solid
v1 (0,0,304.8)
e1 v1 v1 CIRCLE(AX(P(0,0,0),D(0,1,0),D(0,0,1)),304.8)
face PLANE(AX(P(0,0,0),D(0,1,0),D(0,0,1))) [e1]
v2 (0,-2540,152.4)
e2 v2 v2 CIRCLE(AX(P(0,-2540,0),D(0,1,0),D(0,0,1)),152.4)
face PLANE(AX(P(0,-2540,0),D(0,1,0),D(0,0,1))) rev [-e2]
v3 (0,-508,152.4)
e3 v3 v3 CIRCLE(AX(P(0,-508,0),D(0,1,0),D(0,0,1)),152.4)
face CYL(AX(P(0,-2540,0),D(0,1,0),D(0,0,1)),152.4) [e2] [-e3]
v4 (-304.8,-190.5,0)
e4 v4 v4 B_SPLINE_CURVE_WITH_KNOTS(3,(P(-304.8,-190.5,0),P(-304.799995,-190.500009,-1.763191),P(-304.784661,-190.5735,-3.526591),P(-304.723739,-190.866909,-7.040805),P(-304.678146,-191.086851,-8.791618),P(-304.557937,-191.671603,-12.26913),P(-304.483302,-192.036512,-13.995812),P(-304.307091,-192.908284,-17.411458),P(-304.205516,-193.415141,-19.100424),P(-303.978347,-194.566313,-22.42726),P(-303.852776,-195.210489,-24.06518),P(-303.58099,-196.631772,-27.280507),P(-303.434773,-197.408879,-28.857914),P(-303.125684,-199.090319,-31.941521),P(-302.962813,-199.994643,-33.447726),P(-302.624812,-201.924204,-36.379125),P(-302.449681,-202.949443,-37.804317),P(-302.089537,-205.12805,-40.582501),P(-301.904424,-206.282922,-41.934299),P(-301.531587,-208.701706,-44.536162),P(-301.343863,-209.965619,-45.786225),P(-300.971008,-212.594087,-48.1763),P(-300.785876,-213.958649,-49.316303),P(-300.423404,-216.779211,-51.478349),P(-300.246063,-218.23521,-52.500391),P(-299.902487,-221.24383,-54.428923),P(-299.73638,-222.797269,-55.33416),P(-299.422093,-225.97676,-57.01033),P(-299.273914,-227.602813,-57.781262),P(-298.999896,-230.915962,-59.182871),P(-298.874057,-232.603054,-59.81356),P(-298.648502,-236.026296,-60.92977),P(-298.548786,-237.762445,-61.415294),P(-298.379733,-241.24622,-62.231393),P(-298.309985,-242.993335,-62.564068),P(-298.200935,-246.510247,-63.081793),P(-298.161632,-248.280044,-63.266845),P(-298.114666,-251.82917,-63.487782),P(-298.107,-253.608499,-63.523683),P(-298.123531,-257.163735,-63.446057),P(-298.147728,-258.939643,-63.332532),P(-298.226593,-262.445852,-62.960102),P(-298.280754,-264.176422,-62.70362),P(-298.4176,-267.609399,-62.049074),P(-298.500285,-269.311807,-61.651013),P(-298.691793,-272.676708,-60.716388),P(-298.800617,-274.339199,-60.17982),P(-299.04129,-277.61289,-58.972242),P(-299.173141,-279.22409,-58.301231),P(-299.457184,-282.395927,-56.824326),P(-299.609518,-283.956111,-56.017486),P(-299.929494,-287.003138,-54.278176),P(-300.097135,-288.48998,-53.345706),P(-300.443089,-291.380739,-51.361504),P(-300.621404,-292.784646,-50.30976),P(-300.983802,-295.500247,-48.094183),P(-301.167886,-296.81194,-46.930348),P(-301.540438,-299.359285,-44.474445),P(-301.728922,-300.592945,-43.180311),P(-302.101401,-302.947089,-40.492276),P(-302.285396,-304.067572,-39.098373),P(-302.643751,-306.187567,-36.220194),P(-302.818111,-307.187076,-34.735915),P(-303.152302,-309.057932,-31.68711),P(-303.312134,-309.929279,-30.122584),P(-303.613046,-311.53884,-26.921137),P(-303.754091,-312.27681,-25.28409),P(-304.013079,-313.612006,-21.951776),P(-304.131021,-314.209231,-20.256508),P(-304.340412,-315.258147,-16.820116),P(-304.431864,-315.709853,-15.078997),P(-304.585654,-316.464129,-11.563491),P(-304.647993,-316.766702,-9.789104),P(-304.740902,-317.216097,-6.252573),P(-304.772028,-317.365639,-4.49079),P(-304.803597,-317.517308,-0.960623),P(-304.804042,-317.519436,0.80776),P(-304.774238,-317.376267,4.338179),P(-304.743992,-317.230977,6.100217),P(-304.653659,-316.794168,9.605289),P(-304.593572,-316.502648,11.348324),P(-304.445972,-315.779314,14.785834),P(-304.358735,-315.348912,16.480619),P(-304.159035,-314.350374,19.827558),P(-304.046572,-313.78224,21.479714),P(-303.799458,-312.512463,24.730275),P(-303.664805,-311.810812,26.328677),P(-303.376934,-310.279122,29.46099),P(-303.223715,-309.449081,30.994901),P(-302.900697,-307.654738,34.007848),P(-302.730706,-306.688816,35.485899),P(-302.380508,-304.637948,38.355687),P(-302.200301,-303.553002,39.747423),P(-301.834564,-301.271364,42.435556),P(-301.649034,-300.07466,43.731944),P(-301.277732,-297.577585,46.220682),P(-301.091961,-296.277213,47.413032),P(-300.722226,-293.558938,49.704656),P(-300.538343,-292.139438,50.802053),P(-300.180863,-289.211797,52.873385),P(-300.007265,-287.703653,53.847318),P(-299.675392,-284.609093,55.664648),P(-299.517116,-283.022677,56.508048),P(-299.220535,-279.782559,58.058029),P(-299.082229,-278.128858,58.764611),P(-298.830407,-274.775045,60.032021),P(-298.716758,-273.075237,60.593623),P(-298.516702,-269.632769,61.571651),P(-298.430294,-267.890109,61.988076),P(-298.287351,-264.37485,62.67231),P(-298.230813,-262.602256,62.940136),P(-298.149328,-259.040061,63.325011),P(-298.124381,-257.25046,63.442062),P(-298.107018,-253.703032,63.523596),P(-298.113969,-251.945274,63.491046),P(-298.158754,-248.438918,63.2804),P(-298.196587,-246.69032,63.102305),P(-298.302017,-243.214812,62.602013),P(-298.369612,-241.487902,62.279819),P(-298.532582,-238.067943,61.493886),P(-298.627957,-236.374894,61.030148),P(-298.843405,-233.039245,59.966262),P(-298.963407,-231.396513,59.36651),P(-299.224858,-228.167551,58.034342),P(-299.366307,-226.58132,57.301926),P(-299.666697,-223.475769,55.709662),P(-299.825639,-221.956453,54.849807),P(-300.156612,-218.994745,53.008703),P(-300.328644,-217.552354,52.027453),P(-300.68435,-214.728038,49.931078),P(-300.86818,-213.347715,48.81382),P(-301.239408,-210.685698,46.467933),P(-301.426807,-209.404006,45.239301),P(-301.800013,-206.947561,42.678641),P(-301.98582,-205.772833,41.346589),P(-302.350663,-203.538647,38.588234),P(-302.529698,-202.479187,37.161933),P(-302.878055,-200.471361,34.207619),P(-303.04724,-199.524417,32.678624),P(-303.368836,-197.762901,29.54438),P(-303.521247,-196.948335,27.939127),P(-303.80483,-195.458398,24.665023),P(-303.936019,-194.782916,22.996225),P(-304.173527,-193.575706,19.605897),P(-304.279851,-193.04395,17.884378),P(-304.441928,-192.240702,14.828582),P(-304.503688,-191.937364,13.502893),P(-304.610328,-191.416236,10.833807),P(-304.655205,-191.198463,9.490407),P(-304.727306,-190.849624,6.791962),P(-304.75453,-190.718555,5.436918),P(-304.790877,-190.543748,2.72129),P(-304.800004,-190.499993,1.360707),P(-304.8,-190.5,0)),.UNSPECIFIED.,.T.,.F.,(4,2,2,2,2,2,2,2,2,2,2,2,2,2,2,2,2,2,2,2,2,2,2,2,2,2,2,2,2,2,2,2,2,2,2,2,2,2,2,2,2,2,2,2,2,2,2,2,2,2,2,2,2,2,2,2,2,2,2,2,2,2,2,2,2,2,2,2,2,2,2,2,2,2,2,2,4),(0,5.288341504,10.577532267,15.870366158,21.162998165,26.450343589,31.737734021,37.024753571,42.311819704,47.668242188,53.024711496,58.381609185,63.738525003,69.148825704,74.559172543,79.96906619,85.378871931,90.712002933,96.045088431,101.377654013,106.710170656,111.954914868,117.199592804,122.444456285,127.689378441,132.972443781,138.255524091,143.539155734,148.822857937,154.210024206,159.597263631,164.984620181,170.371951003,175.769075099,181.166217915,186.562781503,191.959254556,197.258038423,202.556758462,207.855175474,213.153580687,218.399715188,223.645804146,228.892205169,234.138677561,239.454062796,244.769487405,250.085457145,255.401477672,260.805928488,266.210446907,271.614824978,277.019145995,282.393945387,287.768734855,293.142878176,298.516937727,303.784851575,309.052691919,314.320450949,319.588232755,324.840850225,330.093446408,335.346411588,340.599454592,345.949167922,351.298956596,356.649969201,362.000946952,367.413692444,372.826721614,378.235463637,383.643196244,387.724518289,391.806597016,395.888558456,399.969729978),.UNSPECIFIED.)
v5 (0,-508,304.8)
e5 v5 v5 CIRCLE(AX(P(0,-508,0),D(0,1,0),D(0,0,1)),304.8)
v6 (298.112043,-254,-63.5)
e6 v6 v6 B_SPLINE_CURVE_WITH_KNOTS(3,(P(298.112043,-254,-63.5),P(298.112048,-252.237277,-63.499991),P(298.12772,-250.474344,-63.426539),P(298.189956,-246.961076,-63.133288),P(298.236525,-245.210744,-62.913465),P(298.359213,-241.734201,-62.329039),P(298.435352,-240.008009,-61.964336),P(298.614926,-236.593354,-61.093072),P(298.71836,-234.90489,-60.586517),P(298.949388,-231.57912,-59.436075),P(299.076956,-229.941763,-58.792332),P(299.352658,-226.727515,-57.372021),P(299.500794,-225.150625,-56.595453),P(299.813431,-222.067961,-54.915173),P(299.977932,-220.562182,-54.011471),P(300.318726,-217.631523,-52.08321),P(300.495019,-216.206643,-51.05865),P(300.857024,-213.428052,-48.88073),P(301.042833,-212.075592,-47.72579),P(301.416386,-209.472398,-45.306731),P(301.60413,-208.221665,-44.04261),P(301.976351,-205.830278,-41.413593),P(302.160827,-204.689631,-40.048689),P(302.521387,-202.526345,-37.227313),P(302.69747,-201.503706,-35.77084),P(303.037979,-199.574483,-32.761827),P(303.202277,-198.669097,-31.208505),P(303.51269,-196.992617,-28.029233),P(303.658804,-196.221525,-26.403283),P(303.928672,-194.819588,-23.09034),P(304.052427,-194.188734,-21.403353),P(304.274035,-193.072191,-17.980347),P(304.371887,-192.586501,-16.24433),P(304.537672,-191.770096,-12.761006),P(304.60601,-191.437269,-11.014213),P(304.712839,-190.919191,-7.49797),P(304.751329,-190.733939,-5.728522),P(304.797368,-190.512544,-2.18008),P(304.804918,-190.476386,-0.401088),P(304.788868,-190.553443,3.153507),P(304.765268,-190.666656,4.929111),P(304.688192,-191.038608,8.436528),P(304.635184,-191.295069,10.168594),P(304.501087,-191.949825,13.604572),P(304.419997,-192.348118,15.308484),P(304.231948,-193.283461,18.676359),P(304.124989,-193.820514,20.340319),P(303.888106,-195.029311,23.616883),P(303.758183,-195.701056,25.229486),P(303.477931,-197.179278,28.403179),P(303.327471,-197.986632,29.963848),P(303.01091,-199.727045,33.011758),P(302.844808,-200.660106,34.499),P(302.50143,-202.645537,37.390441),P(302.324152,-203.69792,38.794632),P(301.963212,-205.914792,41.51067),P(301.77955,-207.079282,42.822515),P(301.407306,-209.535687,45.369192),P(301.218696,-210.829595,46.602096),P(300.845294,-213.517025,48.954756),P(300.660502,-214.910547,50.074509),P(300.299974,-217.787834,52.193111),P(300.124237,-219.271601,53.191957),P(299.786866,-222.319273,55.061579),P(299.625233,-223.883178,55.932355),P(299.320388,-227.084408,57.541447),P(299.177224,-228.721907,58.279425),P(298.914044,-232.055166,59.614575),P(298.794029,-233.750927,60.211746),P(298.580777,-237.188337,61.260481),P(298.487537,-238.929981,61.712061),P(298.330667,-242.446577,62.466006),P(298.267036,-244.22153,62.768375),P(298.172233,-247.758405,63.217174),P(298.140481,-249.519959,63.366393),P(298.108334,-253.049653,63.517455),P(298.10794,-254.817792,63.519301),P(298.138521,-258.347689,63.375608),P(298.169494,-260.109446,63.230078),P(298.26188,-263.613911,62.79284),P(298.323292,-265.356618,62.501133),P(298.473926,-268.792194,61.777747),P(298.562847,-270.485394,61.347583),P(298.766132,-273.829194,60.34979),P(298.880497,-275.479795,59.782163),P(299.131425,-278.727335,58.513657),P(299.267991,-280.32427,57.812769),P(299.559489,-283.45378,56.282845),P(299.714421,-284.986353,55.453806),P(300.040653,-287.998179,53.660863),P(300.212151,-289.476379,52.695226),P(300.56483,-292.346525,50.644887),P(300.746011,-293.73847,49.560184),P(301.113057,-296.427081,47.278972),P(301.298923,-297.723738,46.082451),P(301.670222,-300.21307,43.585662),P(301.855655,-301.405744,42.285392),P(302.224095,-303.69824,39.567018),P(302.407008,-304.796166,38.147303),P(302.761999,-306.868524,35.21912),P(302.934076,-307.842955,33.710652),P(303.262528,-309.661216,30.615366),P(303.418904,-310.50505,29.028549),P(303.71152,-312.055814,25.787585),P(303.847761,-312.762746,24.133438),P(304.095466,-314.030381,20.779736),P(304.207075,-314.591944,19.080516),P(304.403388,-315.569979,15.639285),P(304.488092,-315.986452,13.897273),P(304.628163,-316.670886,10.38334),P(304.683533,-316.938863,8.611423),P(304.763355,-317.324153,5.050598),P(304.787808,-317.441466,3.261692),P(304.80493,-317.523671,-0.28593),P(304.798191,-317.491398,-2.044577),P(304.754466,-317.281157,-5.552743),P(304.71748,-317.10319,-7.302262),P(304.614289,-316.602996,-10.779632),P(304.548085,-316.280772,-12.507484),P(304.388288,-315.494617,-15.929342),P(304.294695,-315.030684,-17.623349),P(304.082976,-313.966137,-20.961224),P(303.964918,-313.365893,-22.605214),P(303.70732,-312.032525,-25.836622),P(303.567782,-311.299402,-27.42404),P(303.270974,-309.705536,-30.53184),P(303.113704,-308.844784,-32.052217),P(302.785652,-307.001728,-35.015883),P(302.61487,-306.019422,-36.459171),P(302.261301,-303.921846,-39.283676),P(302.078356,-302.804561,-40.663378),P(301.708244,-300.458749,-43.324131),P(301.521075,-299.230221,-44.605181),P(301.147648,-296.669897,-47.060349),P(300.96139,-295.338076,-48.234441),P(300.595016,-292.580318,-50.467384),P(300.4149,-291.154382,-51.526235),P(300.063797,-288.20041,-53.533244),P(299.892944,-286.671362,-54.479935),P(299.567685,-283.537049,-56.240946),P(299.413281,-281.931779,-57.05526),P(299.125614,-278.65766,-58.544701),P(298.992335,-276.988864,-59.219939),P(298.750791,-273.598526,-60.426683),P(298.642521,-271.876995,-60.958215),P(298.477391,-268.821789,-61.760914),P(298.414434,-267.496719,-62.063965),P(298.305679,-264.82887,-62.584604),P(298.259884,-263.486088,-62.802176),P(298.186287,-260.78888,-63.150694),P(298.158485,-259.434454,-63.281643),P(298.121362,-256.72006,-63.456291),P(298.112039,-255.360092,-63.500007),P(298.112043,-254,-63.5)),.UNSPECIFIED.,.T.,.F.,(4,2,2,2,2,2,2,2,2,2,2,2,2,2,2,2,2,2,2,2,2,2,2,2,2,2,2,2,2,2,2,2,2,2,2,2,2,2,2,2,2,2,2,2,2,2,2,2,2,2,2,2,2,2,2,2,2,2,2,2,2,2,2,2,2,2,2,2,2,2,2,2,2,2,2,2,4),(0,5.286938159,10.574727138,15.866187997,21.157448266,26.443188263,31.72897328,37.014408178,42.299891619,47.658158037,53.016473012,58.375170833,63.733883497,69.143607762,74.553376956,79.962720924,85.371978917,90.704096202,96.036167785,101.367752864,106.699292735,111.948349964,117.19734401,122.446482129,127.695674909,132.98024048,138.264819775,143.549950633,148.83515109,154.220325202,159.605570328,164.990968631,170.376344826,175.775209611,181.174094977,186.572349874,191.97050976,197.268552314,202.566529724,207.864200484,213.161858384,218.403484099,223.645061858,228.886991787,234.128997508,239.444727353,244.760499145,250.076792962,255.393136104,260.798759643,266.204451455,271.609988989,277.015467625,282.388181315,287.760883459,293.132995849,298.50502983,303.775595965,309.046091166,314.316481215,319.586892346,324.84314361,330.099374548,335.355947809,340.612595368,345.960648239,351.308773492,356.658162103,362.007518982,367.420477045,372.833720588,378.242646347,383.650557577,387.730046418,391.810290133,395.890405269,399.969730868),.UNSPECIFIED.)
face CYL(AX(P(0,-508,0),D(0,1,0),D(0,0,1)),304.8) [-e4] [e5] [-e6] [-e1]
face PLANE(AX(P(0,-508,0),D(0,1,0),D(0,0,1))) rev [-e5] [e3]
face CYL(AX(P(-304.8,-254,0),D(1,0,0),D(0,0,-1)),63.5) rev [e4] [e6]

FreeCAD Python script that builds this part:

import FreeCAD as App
import Part
import Sketcher
Q = App.Units.Quantity

doc = App.newDocument("Part")
params = doc.addObject("Spreadsheet::Sheet", "Params")
for row, (alias, value) in enumerate([
    ("sketch1_diameter", "12 in"),
    ("pad1_length", "100 in"),
    ("sketch2_diameter", "24 in"),
    ("sketch2_diameter2", "12 in"),
    ("pad2_length", "20 in"),
    ("sketch3_diameter", "5 in"),
], start=1):
    params.set(f"A{row}", alias)
    params.set(f"B{row}", "=" + value)
    params.setAlias(f"B{row}", alias)

body = doc.addObject("PartDesign::Body", "Body")

sketch1 = body.newObject("Sketcher::SketchObject", "Sketch")
sketch1.AttachmentSupport = (doc.getObject("XZ_Plane"), [""])
sketch1.MapMode = "FlatFace"
sketch1.addGeometry(Part.Circle(App.Vector(0, 0, 0), App.Vector(0, 0, 1), 152), False)
sketch1.addConstraint([
    Sketcher.Constraint("Coincident", 0, 3, -1, 1),
    Sketcher.Constraint("Diameter", 0, Q("12 in")),
])
sketch1.setExpression("Constraints[1]", "Params.sketch1_diameter")
pad1 = body.newObject("PartDesign::Pad", "Pad")
pad1.Profile = sketch1
pad1.setExpression("Length", "Params.pad1_length")

sketch2 = body.newObject("Sketcher::SketchObject", "Sketch001")
sketch2.AttachmentSupport = (doc.getObject("XZ_Plane"), [""])
sketch2.MapMode = "FlatFace"
sketch2.addGeometry([
    Part.Circle(App.Vector(0, 0, 0), App.Vector(0, 0, 1), 305),
    Part.Circle(App.Vector(0, 0, 0), App.Vector(0, 0, 1), 152),
], False)
sketch2.addConstraint([
    Sketcher.Constraint("Coincident", 0, 3, -1, 1),
    Sketcher.Constraint("Coincident", 1, 3, -1, 1),
    Sketcher.Constraint("Diameter", 0, Q("24 in")),
    Sketcher.Constraint("Diameter", 1, Q("12 in")),
])
sketch2.setExpression("Constraints[2]", "Params.sketch2_diameter")
sketch2.setExpression("Constraints[3]", "Params.sketch2_diameter2")
pad2 = body.newObject("PartDesign::Pad", "Pad001")
pad2.Profile = sketch2
pad2.setExpression("Length", "Params.pad2_length")

sketch3 = body.newObject("Sketcher::SketchObject", "Sketch002")
sketch3.AttachmentSupport = (doc.getObject("YZ_Plane"), [""])
sketch3.MapMode = "FlatFace"
sketch3.addGeometry(Part.Circle(App.Vector(-254, 0, 0), App.Vector(0, 0, 1), 64), False)
sketch3.addConstraint([
    Sketcher.Constraint("PointOnObject", 0, 3, -1),
    Sketcher.Constraint("Diameter", 0, Q("5 in")),
    Sketcher.Constraint("DistanceX", 0, 3, -1, 1, Q("10 in")),
])
sketch3.setExpression("Constraints[1]", "Params.sketch3_diameter")
pocket1 = body.newObject("PartDesign::Pocket", "Pocket")
pocket1.Profile = sketch3
pocket1.Type = "ThroughAll"
pocket1.Midplane = True

doc.recompute()
